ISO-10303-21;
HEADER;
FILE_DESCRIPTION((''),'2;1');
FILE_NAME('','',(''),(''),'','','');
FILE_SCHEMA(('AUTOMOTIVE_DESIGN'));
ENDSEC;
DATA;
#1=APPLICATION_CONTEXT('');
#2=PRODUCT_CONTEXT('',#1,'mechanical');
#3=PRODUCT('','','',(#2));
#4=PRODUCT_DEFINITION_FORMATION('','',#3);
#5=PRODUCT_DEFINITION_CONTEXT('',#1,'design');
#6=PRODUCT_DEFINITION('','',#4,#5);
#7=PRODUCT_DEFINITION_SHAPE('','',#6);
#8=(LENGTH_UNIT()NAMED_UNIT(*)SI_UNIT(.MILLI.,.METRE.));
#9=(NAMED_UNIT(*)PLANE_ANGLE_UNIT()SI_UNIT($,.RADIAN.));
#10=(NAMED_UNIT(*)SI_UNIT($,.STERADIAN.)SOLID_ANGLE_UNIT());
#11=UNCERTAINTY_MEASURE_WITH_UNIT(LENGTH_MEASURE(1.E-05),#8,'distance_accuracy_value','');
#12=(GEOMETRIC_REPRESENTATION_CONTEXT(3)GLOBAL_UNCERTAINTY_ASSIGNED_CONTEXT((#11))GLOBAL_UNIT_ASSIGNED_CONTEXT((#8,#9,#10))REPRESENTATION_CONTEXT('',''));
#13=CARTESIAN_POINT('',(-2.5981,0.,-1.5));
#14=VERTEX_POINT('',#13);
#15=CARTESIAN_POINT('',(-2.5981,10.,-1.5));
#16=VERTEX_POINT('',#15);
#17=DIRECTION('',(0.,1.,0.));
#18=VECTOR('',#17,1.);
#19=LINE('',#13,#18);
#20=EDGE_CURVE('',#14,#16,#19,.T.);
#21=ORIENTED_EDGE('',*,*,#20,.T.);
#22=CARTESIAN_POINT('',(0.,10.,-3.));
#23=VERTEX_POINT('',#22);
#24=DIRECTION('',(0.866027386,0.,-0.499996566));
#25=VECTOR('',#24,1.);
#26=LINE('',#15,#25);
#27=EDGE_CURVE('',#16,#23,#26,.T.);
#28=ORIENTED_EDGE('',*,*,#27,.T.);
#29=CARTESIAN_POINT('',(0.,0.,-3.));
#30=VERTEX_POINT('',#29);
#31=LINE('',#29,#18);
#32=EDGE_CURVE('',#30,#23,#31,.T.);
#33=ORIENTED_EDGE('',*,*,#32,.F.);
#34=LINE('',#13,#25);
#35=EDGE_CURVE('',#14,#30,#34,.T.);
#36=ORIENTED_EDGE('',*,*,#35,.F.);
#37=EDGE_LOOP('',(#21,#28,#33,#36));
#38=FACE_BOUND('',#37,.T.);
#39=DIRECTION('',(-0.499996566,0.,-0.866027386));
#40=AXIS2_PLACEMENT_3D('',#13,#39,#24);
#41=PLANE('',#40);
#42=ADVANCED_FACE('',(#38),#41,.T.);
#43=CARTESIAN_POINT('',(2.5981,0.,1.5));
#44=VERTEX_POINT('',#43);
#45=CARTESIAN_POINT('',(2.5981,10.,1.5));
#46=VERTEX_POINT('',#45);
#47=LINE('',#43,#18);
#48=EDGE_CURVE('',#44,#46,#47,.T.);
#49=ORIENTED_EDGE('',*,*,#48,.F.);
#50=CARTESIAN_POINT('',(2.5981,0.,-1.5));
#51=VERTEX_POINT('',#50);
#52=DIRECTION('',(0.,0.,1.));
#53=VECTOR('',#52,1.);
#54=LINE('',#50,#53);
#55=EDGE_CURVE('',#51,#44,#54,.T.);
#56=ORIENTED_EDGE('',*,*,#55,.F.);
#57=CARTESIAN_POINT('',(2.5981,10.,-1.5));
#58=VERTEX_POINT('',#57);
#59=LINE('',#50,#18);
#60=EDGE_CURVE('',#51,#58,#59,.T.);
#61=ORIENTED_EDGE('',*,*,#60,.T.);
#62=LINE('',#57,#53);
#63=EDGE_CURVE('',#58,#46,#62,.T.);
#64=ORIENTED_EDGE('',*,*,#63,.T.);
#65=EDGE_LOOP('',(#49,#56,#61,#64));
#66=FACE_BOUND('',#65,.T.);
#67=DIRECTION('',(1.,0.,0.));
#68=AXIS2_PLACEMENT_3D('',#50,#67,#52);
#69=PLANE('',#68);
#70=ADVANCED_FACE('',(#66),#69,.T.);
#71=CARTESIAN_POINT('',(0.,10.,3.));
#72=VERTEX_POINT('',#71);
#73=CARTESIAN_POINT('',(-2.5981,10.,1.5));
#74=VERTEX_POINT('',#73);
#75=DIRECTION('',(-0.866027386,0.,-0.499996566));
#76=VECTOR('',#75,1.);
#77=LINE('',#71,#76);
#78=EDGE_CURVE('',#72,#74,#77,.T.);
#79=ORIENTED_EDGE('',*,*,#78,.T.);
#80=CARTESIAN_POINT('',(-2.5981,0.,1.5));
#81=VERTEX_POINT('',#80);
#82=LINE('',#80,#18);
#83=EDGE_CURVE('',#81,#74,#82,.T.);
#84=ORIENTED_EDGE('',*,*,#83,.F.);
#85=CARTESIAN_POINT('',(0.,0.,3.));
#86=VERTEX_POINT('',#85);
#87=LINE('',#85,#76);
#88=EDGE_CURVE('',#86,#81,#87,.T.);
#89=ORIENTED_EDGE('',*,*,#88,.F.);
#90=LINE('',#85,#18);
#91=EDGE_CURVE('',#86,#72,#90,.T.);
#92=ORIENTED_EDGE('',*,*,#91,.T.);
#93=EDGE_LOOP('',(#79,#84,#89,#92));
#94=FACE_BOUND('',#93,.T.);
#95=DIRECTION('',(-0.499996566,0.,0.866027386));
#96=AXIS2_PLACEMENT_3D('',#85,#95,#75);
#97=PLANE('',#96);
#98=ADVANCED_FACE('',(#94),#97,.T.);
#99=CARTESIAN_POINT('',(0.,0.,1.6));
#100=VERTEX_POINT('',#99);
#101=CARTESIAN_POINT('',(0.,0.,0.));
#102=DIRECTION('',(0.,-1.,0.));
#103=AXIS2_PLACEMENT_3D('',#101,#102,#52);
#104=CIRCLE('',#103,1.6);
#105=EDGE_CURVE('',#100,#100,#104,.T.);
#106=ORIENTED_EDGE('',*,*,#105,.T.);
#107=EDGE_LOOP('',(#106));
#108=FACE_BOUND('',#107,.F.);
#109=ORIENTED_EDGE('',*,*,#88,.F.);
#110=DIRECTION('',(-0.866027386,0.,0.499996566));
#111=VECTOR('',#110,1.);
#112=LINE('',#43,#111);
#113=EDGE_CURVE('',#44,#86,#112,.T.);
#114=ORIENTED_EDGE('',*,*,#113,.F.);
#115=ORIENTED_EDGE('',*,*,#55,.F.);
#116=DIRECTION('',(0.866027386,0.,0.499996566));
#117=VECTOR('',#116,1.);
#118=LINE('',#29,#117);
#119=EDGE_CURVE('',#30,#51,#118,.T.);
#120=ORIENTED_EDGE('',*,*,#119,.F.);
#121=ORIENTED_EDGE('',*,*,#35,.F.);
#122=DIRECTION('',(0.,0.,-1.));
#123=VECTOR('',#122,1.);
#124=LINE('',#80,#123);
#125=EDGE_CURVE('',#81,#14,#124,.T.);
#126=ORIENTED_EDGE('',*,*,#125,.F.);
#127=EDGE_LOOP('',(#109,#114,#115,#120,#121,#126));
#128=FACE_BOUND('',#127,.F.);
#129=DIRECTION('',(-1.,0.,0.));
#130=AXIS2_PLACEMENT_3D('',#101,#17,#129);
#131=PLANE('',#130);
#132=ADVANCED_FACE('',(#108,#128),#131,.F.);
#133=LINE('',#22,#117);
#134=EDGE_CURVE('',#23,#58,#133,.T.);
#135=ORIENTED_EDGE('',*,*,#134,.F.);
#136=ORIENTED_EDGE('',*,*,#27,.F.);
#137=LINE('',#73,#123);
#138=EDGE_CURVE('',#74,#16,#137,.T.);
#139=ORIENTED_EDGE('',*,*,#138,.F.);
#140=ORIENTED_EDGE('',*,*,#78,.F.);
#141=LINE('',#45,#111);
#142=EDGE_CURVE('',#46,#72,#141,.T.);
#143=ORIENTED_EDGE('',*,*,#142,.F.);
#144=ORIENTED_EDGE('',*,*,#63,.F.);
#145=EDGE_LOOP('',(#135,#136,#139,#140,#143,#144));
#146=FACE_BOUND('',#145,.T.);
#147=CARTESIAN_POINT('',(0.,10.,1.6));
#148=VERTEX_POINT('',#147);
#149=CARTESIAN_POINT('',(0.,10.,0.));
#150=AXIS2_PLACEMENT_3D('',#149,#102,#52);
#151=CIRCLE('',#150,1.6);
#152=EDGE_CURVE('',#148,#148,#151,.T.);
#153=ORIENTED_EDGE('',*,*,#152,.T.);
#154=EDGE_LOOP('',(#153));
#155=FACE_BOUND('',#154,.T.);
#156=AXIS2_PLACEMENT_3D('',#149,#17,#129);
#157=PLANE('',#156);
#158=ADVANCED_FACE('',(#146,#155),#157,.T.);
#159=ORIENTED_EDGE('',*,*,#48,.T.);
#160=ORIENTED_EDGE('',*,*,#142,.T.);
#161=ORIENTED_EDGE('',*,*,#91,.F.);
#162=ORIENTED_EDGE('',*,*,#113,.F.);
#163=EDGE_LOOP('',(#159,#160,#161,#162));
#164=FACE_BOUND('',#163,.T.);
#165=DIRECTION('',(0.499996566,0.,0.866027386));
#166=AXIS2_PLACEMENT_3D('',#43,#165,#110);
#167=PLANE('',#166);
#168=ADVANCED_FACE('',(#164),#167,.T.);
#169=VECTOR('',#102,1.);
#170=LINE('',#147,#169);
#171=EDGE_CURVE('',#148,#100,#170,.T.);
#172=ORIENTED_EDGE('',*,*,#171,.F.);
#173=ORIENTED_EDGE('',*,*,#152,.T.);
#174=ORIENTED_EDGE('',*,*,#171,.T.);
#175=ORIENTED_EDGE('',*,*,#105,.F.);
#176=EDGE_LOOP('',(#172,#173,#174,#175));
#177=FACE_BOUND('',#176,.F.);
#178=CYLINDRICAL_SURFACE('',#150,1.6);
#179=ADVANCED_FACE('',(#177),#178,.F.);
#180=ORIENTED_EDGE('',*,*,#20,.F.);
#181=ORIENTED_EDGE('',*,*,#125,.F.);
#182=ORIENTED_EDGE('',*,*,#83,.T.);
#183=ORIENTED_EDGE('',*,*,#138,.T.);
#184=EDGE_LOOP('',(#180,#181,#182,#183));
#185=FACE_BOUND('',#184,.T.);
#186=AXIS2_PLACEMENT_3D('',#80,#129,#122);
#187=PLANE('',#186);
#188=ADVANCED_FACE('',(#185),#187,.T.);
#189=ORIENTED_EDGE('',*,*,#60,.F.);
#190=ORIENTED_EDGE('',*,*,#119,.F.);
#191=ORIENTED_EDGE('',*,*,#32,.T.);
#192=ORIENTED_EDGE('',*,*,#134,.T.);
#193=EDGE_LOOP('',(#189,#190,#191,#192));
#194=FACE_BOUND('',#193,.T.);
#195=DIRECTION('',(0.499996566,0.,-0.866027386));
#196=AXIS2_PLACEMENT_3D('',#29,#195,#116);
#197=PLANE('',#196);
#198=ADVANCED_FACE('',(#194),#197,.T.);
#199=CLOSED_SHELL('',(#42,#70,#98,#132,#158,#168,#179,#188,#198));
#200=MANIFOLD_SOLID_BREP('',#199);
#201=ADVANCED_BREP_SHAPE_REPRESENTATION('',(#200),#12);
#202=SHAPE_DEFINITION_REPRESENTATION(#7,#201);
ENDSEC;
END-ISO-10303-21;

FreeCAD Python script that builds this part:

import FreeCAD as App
import Part
import Sketcher
from FreeCAD import Vector

doc = App.newDocument("Part")
params = doc.addObject("Spreadsheet::Sheet", "Params")
for row, (alias, value) in enumerate([
    ("sketch1_height", "3 mm"),
    ("sketch1_length", "3 mm"),
    ("pad1_length", "10 mm"),
    ("sketch2_diameter", "3.2 mm"),
    ("hole_diameter", "3.2 mm"),
], start=1):
    params.set(f"A{row}", alias)
    params.set(f"B{row}", "=" + value)
    params.setAlias(f"B{row}", alias)

body = doc.addObject("PartDesign::Body", "Body")

# Sketch on XZ plane
sketch1 = body.newObject("Sketcher::SketchObject", "Sketch")
sketch1.AttachmentSupport = (doc.getObject("XZ_Plane"), [""])
sketch1.MapMode = "FlatFace"
sketch1.addGeometry(Part.LineSegment(Vector(2.6, -1.5, 0), Vector(0, -3, 0)), False)
sketch1.addGeometry(Part.LineSegment(Vector(0, -3, 0), Vector(-2.6, -1.5, 0)), False)
sketch1.addGeometry(Part.LineSegment(Vector(-2.6, -1.5, 0), Vector(-2.6, 1.5, 0)), False)
sketch1.addGeometry(Part.LineSegment(Vector(-2.6, 1.5, 0), Vector(0, 3, 0)), False)
sketch1.addGeometry(Part.LineSegment(Vector(0, 3, 0), Vector(2.6, 1.5, 0)), False)
sketch1.addGeometry(Part.LineSegment(Vector(2.6, 1.5, 0), Vector(2.6, -1.5, 0)), False)
sketch1.addConstraint(Sketcher.Constraint("Coincident", 0, 2, 1, 1))
sketch1.addConstraint(Sketcher.Constraint("Coincident", 1, 2, 2, 1))
sketch1.addConstraint(Sketcher.Constraint("Coincident", 2, 2, 3, 1))
sketch1.addConstraint(Sketcher.Constraint("Coincident", 3, 2, 4, 1))
sketch1.addConstraint(Sketcher.Constraint("Coincident", 4, 2, 5, 1))
sketch1.addConstraint(Sketcher.Constraint("Coincident", 5, 2, 0, 1))
sketch1.addConstraint(Sketcher.Constraint("Vertical", 2))
sketch1.addConstraint(Sketcher.Constraint("Vertical", 5))
sketch1.addConstraint(Sketcher.Constraint("Symmetric", 0, 2, 3, 2, -1, 1))
sketch1.addConstraint(Sketcher.Constraint("Symmetric", 1, 2, 4, 2, -1, 1))
sketch1.addConstraint(Sketcher.Constraint("PointOnObject", 0, 2, -2))
sketch1.addConstraint(Sketcher.Constraint("Parallel", 0, 3))
sketch1.addConstraint(Sketcher.Constraint("Horizontal", 2, 2, 4, 2))
sketch1.addConstraint(Sketcher.Constraint("DistanceY", 2, 1, 2, 2, 3.0))
sketch1.addConstraint(Sketcher.Constraint("Distance", 0, 3.0))
sketch1.addConstraint(Sketcher.Constraint("DistanceY", 0, 2, -1, 1, 3.0))
sketch1.setExpression("Constraints[13]", "Params.sketch1_height")
sketch1.setExpression("Constraints[14]", "Params.sketch1_length")
pad1 = body.newObject("PartDesign::Pad", "Pad")
pad1.Profile = sketch1
pad1.setExpression("Length", "Params.pad1_length")
pad1.Reversed = True

# Sketch on XZ plane
sketch2 = body.newObject("Sketcher::SketchObject", "Sketch001")
sketch2.AttachmentSupport = (doc.getObject("XZ_Plane"), [""])
sketch2.MapMode = "FlatFace"
sketch2.AttachmentOffset = App.Placement(Vector(0, 0, -10), App.Rotation())
sketch2.addGeometry(Part.Circle(Vector(0, 0, 0), Vector(0, 0, 1), 1.6), False)
sketch2.addConstraint(Sketcher.Constraint("Coincident", 0, 3, -1, 1))
sketch2.addConstraint(Sketcher.Constraint("Diameter", 0, 3.2))
sketch2.setExpression("Constraints[1]", "Params.sketch2_diameter")
doc.recompute()
hole = body.newObject("PartDesign::Hole", "Hole")
hole.Profile = sketch2
hole.ThreadType = "None"
hole.setExpression("Diameter", "Params.hole_diameter")
hole.DepthType = "ThroughAll"
hole.Reversed = True

doc.recompute()
